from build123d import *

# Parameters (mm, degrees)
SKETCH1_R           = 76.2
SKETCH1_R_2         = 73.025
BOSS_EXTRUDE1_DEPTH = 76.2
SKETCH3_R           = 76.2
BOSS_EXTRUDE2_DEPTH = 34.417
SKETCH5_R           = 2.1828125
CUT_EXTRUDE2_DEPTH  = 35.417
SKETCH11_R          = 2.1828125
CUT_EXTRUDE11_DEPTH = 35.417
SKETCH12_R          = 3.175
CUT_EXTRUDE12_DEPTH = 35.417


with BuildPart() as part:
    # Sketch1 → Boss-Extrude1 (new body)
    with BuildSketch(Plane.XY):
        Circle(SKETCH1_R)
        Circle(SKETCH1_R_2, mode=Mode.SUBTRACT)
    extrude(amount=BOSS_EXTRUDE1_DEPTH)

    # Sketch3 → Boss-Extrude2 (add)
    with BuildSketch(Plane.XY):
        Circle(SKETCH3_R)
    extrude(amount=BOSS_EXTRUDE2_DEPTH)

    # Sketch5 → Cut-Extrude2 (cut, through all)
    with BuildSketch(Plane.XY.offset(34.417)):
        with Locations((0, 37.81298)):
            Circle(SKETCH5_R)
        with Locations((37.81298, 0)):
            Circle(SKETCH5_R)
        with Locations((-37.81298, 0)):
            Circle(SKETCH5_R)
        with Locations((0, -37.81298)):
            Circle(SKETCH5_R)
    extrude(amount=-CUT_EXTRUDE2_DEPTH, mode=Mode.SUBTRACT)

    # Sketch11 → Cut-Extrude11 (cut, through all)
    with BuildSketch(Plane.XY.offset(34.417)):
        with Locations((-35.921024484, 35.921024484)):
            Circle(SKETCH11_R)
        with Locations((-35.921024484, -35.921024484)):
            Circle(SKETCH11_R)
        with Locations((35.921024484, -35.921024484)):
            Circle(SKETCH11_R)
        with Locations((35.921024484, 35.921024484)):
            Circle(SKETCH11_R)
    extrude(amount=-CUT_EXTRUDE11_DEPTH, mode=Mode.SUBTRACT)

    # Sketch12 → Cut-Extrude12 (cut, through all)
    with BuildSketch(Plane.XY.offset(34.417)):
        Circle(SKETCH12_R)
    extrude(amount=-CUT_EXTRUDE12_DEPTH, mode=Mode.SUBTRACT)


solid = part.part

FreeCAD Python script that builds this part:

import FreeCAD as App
import Part
import Sketcher
Q = App.Units.Quantity

doc = App.newDocument("Part")
params = doc.addObject("Spreadsheet::Sheet", "Params")
for row, (alias, value) in enumerate([
    ("sketch1_diameter", "6 in"),
    ("sketch1_diameter2", "5.75 in"),
    ("pad1_length", "3 in"),
    ("sketch2_diameter", "6 in"),
    ("pad2_length", "1.355 in"),
    ("sketch3_diameter", "0.171875 in"),
    ("sketch4_diameter", "0.171875 in"),
    ("sketch5_diameter", "0.25 in"),
], start=1):
    params.set(f"A{row}", alias)
    params.set(f"B{row}", "=" + value)
    params.setAlias(f"B{row}", alias)

body = doc.addObject("PartDesign::Body", "Body")

sketch1 = body.newObject("Sketcher::SketchObject", "Sketch")
sketch1.AttachmentSupport = (doc.getObject("XY_Plane"), [""])
sketch1.MapMode = "FlatFace"
sketch1.addGeometry([
    Part.Circle(App.Vector(0, 0, 0), App.Vector(0, 0, 1), 76),
    Part.Circle(App.Vector(0, 0, 0), App.Vector(0, 0, 1), 73),
], False)
sketch1.addConstraint([
    Sketcher.Constraint("Coincident", 0, 3, -1, 1),
    Sketcher.Constraint("Coincident", 1, 3, -1, 1),
    Sketcher.Constraint("Diameter", 0, Q("6 in")),
    Sketcher.Constraint("Diameter", 1, Q("5.75 in")),
])
sketch1.setExpression("Constraints[2]", "Params.sketch1_diameter")
sketch1.setExpression("Constraints[3]", "Params.sketch1_diameter2")
pad1 = body.newObject("PartDesign::Pad", "Pad")
pad1.Profile = sketch1
pad1.setExpression("Length", "Params.pad1_length")

sketch2 = body.newObject("Sketcher::SketchObject", "Sketch001")
sketch2.AttachmentSupport = (doc.getObject("XY_Plane"), [""])
sketch2.MapMode = "FlatFace"
sketch2.addGeometry(Part.Circle(App.Vector(0, 0, 0), App.Vector(0, 0, 1), 76), False)
sketch2.addConstraint([
    Sketcher.Constraint("Coincident", 0, 3, -1, 1),
    Sketcher.Constraint("Diameter", 0, Q("6 in")),
])
sketch2.setExpression("Constraints[1]", "Params.sketch2_diameter")
pad2 = body.newObject("PartDesign::Pad", "Pad001")
pad2.Profile = sketch2
pad2.setExpression("Length", "Params.pad2_length")

sketch3 = body.newObject("Sketcher::SketchObject", "Sketch002")
sketch3.AttachmentSupport = (doc.getObject("XY_Plane"), [""])
sketch3.MapMode = "FlatFace"
sketch3.AttachmentOffset = App.Placement(App.Vector(0, 0, 1.355 * 25.4), App.Rotation())
sketch3.addGeometry([
    Part.Circle(App.Vector(0, 37.8, 0), App.Vector(0, 0, 1), 2.2),
    Part.Circle(App.Vector(37.8, 0, 0), App.Vector(0, 0, 1), 2.2),
    Part.Circle(App.Vector(-37.8, 0, 0), App.Vector(0, 0, 1), 2.2),
    Part.Circle(App.Vector(0, -37.8, 0), App.Vector(0, 0, 1), 2.2),
], False)
sketch3.addConstraint([
    Sketcher.Constraint("Equal", 0, 1),
    Sketcher.Constraint("Equal", 1, 2),
    Sketcher.Constraint("Equal", 2, 3),
    Sketcher.Constraint("Symmetric", 1, 3, 2, 3, -1, 1),
    Sketcher.Constraint("Symmetric", 0, 3, 3, 3, -1, 1),
    Sketcher.Constraint("PointOnObject", 0, 3, -2),
    Sketcher.Constraint("PointOnObject", 1, 3, -1),
    Sketcher.Constraint("Diameter", 0, Q("0.171875 in")),
    Sketcher.Constraint("DistanceY", -1, 1, 0, 3, Q("1.4887 in")),
    Sketcher.Constraint("DistanceX", -1, 1, 1, 3, Q("1.4887 in")),
])
sketch3.setExpression("Constraints[7]", "Params.sketch3_diameter")
pocket1 = body.newObject("PartDesign::Pocket", "Pocket")
pocket1.Profile = sketch3
pocket1.Type = "ThroughAll"

sketch4 = body.newObject("Sketcher::SketchObject", "Sketch003")
sketch4.AttachmentSupport = (doc.getObject("XY_Plane"), [""])
sketch4.MapMode = "FlatFace"
sketch4.AttachmentOffset = App.Placement(App.Vector(0, 0, 1.355 * 25.4), App.Rotation())
sketch4.addGeometry([
    Part.Circle(App.Vector(-35.9, 35.9, 0), App.Vector(0, 0, 1), 2.2),
    Part.Circle(App.Vector(-35.9, -35.9, 0), App.Vector(0, 0, 1), 2.2),
    Part.Circle(App.Vector(35.9, -35.9, 0), App.Vector(0, 0, 1), 2.2),
    Part.Circle(App.Vector(35.9, 35.9, 0), App.Vector(0, 0, 1), 2.2),
], False)
sketch4.addConstraint([
    Sketcher.Constraint("Equal", 0, 1),
    Sketcher.Constraint("Equal", 1, 2),
    Sketcher.Constraint("Equal", 2, 3),
    Sketcher.Constraint("Symmetric", 0, 3, 2, 3, -1, 1),
    Sketcher.Constraint("Symmetric", 1, 3, 3, 3, -1, 1),
    Sketcher.Constraint("Symmetric", 1, 3, 2, 3, -2),
    Sketcher.Constraint("Diameter", 0, Q("0.171875 in")),
    Sketcher.Constraint("DistanceY", 1, 3, 0, 3, Q("71.842049 mm")),
    Sketcher.Constraint("DistanceX", 1, 3, 2, 3, Q("71.842049 mm")),
])
sketch4.setExpression("Constraints[6]", "Params.sketch4_diameter")
pocket2 = body.newObject("PartDesign::Pocket", "Pocket001")
pocket2.Profile = sketch4
pocket2.Type = "ThroughAll"

sketch5 = body.newObject("Sketcher::SketchObject", "Sketch004")
sketch5.AttachmentSupport = (doc.getObject("XY_Plane"), [""])
sketch5.MapMode = "FlatFace"
sketch5.AttachmentOffset = App.Placement(App.Vector(0, 0, 1.355 * 25.4), App.Rotation())
sketch5.addGeometry(Part.Circle(App.Vector(0, 0, 0), App.Vector(0, 0, 1), 3.2), False)
sketch5.addConstraint([
    Sketcher.Constraint("Coincident", 0, 3, -1, 1),
    Sketcher.Constraint("Diameter", 0, Q("0.25 in")),
])
sketch5.setExpression("Constraints[1]", "Params.sketch5_diameter")
pocket3 = body.newObject("PartDesign::Pocket", "Pocket002")
pocket3.Profile = sketch5
pocket3.Type = "ThroughAll"

doc.recompute()
